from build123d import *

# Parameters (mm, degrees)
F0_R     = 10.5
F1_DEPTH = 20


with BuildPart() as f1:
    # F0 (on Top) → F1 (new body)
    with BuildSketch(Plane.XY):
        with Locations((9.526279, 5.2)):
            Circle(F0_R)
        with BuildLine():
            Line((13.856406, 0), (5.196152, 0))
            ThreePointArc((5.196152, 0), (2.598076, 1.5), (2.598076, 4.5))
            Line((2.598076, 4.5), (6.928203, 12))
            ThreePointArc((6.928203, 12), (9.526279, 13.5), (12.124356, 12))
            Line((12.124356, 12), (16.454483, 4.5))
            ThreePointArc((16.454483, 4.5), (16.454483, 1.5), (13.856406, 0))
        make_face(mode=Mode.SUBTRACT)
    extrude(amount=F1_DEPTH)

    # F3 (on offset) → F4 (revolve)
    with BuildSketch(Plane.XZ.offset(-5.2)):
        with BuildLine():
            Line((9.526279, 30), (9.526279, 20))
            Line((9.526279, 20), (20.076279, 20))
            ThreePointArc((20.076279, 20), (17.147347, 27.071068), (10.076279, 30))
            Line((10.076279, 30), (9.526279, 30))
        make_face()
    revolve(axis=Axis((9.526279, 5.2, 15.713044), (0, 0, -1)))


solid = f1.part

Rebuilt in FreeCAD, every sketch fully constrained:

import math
import FreeCAD as App
import Part
import Sketcher
Q = App.Units.Quantity

doc = App.newDocument("Part")
body = doc.addObject("PartDesign::Body", "Body")

# Sketch on XY plane
sketch1 = body.newObject("Sketcher::SketchObject", "Sketch")
sketch1.AttachmentSupport = (doc.getObject("XY_Plane"), [""])
sketch1.MapMode = "FlatFace"
sketch1.addGeometry([
    Part.Circle(App.Vector(9.5, 5.2, 0), App.Vector(0, 0, 1), 10.5),  # 0
    Part.ArcOfCircle(Part.Circle(App.Vector(13.9, 3, 0), App.Vector(0, 0, 1), 3), math.radians(-90), math.radians(30)),  # 1
    Part.LineSegment(App.Vector(13.9, 0, 0), App.Vector(5.2, 0, 0)),  # 2
    Part.ArcOfCircle(Part.Circle(App.Vector(5.2, 3, 0), App.Vector(0, 0, 1), 3), math.radians(150), math.radians(270)),  # 3
    Part.LineSegment(App.Vector(2.6, 4.5, 0), App.Vector(6.9, 12, 0)),  # 4
    Part.ArcOfCircle(Part.Circle(App.Vector(9.5, 10.5, 0), App.Vector(0, 0, 1), 3), math.radians(30), math.radians(150)),  # 5
    Part.LineSegment(App.Vector(12.1, 12, 0), App.Vector(16.5, 4.5, 0)),  # 6
], False)
sketch1.addConstraint([
    Sketcher.Constraint("Tangent", 1, 1, 2, 1),
    Sketcher.Constraint("Tangent", 2, 2, 3, 2),
    Sketcher.Constraint("Tangent", 3, 1, 4, 1),
    Sketcher.Constraint("Tangent", 4, 2, 5, 2),
    Sketcher.Constraint("Tangent", 5, 1, 6, 1),
    Sketcher.Constraint("Tangent", 6, 2, 1, 2),
    Sketcher.Constraint("Horizontal", 2),
    Sketcher.Constraint("Equal", 1, 3),
    Sketcher.Constraint("Equal", 3, 5),
    Sketcher.Constraint("PointOnObject", 1, 1, -1),
    Sketcher.Constraint("Horizontal", 4, 2, 5, 1),
    Sketcher.Constraint("Vertical", 0, 3, 5, 3),
    Sketcher.Constraint("Diameter", 0, Q("21 mm")),
    Sketcher.Constraint("Radius", 1, Q("3 mm")),
    Sketcher.Constraint("Angle", 4, Q("60 deg")),
    Sketcher.Constraint("DistanceY", -1, 1, 4, 2, Q("12 mm")),
    Sketcher.Constraint("DistanceY", -1, 1, 0, 3, Q("5.2 mm")),
    Sketcher.Constraint("DistanceX", -1, 1, 0, 3, Q("9.526279 mm")),
])
pad1 = body.newObject("PartDesign::Pad", "Pad")
pad1.Profile = sketch1
pad1.Length = 20

# Sketch on XZ plane
sketch2 = body.newObject("Sketcher::SketchObject", "Sketch001")
sketch2.AttachmentSupport = (doc.getObject("XZ_Plane"), [""])
sketch2.MapMode = "FlatFace"
sketch2.AttachmentOffset = App.Placement(App.Vector(0, 0, -5.2), App.Rotation())
sketch2.addGeometry([
    Part.LineSegment(App.Vector(9.5, 30, 0), App.Vector(9.5, 20, 0)),
    Part.LineSegment(App.Vector(9.5, 20, 0), App.Vector(20.1, 20, 0)),
    Part.ArcOfCircle(Part.Circle(App.Vector(10.1, 20, 0), App.Vector(0, 0, 1), 10), math.radians(0), math.radians(90)),
    Part.LineSegment(App.Vector(10.1, 30, 0), App.Vector(9.5, 30, 0)),
], False)
sketch2.addGeometry(Part.LineSegment(App.Vector(9.5, 30, 0), App.Vector(9.5, 20, 0)), True)  # axis
sketch2.addConstraint([
    Sketcher.Constraint("Coincident", 0, 2, 1, 1),
    Sketcher.Constraint("Coincident", 1, 2, 2, 1),
    Sketcher.Constraint("Tangent", 2, 2, 3, 1),
    Sketcher.Constraint("Coincident", 3, 2, 0, 1),
    Sketcher.Constraint("Vertical", 0),
    Sketcher.Constraint("Horizontal", 1),
    Sketcher.Constraint("Horizontal", 3),
    Sketcher.Constraint("Vertical", 4),
    Sketcher.Constraint("Coincident", 4, 1, 3, 2),
    Sketcher.Constraint("Horizontal", 2, 3, 0, 2),
    Sketcher.Constraint("Horizontal", 1, 2, 4, 2),
    Sketcher.Constraint("Radius", 2, Q("9.999999 mm")),
    Sketcher.Constraint("DistanceY", -1, 1, 2, 3, Q("20.000001 mm")),
    Sketcher.Constraint("DistanceX", 1, 1, 1, 2, Q("10.55 mm")),
    Sketcher.Constraint("DistanceX", -1, 1, 2, 3, Q("10.07628 mm")),
])
revolution = body.newObject("PartDesign::Revolution", "Revolution")
revolution.Profile = sketch2
revolution.ReferenceAxis = (sketch2, ["Axis0"])
revolution.Angle = 360

doc.recompute()
